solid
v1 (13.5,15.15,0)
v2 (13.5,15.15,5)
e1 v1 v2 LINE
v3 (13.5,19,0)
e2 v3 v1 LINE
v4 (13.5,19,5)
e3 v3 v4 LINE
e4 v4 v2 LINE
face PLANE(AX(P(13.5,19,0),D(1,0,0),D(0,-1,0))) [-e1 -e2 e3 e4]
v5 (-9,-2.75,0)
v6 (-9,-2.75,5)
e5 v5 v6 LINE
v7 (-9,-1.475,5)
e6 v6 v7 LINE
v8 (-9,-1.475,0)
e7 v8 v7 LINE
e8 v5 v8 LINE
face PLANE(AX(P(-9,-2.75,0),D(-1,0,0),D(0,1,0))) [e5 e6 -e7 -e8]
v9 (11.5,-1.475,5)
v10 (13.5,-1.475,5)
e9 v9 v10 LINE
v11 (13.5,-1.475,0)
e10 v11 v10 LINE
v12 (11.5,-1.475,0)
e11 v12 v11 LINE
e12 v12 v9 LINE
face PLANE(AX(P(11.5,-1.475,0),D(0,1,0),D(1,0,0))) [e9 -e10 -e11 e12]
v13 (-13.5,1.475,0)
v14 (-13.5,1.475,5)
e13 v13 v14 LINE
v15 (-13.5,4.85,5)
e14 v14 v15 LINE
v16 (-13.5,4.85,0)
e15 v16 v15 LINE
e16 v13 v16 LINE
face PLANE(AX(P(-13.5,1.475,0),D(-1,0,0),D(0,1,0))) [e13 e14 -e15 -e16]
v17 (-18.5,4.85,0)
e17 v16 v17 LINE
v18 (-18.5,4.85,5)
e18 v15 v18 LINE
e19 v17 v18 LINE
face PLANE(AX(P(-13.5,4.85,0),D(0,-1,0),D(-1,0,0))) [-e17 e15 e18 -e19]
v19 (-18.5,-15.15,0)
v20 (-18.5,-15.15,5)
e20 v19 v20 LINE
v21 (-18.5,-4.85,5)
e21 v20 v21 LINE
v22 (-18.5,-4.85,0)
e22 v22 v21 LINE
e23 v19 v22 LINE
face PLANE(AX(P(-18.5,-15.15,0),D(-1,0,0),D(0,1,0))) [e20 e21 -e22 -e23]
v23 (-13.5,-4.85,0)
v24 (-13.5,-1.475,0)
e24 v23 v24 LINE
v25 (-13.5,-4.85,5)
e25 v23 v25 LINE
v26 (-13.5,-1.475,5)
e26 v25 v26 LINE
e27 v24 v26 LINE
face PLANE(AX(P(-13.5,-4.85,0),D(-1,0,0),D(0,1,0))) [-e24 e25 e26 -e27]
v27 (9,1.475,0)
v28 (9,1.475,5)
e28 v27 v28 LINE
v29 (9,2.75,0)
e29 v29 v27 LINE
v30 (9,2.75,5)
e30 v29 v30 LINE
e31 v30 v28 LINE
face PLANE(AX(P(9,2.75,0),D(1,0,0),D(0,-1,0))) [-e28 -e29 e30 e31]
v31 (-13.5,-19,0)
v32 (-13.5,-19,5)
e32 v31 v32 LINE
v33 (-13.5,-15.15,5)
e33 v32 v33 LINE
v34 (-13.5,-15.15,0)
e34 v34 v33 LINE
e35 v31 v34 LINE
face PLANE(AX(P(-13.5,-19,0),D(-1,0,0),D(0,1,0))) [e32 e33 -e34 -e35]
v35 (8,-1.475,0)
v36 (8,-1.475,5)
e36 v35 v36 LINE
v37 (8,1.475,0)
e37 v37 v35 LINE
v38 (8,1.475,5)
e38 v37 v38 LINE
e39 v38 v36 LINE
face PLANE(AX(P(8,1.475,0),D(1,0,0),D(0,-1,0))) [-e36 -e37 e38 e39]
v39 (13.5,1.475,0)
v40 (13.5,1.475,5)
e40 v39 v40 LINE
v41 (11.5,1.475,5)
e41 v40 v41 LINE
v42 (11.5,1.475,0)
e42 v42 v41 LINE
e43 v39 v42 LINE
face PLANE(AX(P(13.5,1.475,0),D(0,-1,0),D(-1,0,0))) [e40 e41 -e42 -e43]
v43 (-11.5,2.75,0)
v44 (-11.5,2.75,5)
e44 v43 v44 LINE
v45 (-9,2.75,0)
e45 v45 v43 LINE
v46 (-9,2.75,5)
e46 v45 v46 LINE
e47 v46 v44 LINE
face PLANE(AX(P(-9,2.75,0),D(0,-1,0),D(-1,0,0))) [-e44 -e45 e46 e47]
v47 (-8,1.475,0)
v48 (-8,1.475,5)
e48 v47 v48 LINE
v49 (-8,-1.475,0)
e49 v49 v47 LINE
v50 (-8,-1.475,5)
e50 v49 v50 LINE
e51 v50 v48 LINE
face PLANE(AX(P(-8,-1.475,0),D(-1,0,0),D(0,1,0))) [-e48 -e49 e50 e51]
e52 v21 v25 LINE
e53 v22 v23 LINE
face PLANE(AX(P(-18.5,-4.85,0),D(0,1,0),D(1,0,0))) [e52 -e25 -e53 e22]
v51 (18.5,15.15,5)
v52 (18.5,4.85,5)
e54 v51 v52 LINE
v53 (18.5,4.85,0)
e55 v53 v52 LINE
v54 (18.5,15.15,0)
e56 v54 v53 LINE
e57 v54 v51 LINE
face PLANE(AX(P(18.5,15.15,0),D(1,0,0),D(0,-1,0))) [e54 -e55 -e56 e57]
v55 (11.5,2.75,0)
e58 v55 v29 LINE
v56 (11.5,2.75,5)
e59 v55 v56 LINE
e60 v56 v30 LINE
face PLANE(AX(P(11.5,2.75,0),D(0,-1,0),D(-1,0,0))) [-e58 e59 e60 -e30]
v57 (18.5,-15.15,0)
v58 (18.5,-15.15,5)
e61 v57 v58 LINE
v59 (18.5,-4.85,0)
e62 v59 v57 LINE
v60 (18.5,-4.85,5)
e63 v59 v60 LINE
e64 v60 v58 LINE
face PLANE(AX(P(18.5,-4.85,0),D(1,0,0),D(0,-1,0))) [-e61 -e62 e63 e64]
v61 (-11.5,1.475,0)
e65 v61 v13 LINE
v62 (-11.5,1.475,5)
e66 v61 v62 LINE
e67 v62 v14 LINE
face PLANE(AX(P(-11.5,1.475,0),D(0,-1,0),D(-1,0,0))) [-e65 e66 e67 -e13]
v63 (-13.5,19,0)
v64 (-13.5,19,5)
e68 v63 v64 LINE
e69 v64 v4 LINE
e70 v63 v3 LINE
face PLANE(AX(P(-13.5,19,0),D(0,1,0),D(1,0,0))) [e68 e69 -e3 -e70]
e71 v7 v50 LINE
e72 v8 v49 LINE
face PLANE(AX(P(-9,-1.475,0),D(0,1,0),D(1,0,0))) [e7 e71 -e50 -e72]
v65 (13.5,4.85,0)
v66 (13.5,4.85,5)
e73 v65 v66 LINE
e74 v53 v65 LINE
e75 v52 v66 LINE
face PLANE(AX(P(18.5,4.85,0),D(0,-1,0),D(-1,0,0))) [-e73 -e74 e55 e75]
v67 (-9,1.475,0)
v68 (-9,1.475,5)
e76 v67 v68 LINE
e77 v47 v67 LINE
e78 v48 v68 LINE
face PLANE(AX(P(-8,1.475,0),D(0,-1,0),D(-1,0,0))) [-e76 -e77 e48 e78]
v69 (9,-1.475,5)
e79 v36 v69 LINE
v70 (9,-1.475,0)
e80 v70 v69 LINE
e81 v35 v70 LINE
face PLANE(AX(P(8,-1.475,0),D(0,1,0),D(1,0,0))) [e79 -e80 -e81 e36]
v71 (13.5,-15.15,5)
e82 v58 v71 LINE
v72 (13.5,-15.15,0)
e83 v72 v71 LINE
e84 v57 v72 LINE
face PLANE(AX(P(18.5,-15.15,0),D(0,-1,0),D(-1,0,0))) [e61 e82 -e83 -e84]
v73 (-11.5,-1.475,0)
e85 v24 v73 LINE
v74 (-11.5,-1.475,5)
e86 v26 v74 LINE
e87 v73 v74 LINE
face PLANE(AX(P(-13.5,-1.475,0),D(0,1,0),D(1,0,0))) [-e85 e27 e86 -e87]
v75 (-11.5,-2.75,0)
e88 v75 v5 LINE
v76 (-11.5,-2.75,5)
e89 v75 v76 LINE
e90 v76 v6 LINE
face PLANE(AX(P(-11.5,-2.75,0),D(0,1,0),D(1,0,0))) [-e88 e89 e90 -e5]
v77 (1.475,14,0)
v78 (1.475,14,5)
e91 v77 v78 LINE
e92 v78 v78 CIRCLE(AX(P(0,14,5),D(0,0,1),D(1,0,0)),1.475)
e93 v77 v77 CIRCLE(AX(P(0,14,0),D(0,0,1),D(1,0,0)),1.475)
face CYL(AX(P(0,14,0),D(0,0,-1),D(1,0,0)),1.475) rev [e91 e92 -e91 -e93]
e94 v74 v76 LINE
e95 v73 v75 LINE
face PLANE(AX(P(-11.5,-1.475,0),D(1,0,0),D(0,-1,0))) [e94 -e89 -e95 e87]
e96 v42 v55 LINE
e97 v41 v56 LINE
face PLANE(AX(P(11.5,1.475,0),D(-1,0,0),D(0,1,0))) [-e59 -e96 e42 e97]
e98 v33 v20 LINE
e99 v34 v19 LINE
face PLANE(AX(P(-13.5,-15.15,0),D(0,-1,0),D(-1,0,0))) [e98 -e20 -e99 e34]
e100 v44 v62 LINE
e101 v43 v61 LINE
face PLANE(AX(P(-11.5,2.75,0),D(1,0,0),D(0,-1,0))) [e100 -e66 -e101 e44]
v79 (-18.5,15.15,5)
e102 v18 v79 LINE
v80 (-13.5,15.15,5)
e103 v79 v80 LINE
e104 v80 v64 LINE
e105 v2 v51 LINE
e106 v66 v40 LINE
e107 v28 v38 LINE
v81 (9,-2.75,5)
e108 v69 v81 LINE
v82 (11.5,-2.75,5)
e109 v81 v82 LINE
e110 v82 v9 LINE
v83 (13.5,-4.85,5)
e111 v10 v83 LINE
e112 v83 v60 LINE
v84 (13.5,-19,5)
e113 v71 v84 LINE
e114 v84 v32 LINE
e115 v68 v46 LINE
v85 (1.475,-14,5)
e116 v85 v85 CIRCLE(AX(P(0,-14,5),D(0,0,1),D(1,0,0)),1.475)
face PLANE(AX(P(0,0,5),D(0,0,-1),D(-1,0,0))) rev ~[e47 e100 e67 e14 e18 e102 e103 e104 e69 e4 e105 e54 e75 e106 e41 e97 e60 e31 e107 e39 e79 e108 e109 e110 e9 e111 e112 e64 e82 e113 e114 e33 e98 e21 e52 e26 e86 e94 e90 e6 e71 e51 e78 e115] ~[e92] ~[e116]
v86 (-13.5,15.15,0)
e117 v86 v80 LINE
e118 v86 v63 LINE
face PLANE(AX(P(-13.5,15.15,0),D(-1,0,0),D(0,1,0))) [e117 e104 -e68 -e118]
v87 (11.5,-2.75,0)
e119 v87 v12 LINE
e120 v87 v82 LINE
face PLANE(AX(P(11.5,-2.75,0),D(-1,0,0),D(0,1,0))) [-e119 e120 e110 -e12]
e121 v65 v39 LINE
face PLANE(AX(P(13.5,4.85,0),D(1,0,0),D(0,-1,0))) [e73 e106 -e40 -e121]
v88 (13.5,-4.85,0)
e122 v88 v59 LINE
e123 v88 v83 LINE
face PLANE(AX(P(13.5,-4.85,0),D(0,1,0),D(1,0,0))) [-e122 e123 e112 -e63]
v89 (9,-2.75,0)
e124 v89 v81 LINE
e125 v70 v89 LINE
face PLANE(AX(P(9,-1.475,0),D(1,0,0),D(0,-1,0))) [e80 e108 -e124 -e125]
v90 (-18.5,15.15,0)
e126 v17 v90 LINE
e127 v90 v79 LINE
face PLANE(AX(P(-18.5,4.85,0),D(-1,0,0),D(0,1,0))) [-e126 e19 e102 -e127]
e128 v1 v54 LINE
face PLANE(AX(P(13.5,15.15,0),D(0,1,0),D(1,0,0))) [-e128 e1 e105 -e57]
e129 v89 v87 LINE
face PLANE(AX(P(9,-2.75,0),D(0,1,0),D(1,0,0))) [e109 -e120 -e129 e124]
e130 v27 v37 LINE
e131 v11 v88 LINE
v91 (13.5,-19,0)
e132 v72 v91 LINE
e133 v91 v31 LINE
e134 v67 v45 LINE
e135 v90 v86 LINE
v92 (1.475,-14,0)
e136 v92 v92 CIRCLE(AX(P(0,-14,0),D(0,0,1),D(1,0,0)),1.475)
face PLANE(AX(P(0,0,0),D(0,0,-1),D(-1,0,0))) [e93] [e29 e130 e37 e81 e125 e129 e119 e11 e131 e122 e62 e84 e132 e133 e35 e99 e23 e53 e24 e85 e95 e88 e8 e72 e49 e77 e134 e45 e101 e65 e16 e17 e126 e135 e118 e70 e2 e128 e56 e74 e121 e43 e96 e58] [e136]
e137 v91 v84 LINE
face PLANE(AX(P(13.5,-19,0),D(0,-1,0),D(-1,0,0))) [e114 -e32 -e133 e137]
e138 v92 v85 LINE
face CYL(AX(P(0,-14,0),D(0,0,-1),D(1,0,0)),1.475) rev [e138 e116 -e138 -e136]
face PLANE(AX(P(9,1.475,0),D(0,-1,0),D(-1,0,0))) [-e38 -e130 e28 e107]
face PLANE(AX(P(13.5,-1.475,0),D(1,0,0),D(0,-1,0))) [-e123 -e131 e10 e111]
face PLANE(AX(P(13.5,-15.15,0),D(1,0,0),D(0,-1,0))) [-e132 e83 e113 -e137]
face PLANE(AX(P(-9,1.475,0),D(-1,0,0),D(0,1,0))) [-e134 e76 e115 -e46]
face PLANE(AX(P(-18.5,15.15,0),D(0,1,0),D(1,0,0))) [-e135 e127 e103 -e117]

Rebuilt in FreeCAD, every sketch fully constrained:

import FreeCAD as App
import Part
import Sketcher

V = App.Vector

doc = App.newDocument("Part")
body = doc.addObject("PartDesign::Body", "Body")

# Sketch on XY plane
sketch1 = body.newObject("Sketcher::SketchObject", "Sketch")
sketch1.AttachmentSupport = (doc.getObject("XY_Plane"), [""])
sketch1.MapMode = "FlatFace"
sketch1.addGeometry(Part.LineSegment(V(13.5, 19, 0), V(-13.5, 19, 0)), False)
sketch1.addGeometry(Part.LineSegment(V(-13.5, 19, 0), V(-13.5, 15.2, 0)), False)
sketch1.addGeometry(Part.LineSegment(V(-13.5, 15.2, 0), V(-18.5, 15.2, 0)), False)
sketch1.addGeometry(Part.LineSegment(V(-18.5, 15.2, 0), V(-18.5, 4.8, 0)), False)
sketch1.addGeometry(Part.LineSegment(V(-18.5, 4.8, 0), V(-13.5, 4.8, 0)), False)
sketch1.addGeometry(Part.LineSegment(V(-13.5, 4.8, 0), V(-13.5, 1.5, 0)), False)
sketch1.addGeometry(Part.LineSegment(V(-13.5, 1.5, 0), V(-11.5, 1.5, 0)), False)
sketch1.addGeometry(Part.LineSegment(V(-11.5, 1.5, 0), V(-11.5, 2.8, 0)), False)
sketch1.addGeometry(Part.LineSegment(V(-11.5, 2.8, 0), V(-9, 2.8, 0)), False)
sketch1.addGeometry(Part.LineSegment(V(-9, 2.8, 0), V(-9, 1.5, 0)), False)
sketch1.addGeometry(Part.LineSegment(V(-9, 1.5, 0), V(-8, 1.5, 0)), False)
sketch1.addGeometry(Part.LineSegment(V(-8, 1.5, 0), V(-8, -1.5, 0)), False)
sketch1.addGeometry(Part.LineSegment(V(-8, -1.5, 0), V(-9, -1.5, 0)), False)
sketch1.addGeometry(Part.LineSegment(V(-9, -1.5, 0), V(-9, -2.8, 0)), False)
sketch1.addGeometry(Part.LineSegment(V(-9, -2.8, 0), V(-11.5, -2.8, 0)), False)
sketch1.addGeometry(Part.LineSegment(V(-11.5, -2.8, 0), V(-11.5, -1.5, 0)), False)
sketch1.addGeometry(Part.LineSegment(V(-11.5, -1.5, 0), V(-13.5, -1.5, 0)), False)
sketch1.addGeometry(Part.LineSegment(V(-13.5, -1.5, 0), V(-13.5, -4.8, 0)), False)
sketch1.addGeometry(Part.LineSegment(V(-13.5, -4.8, 0), V(-18.5, -4.8, 0)), False)
sketch1.addGeometry(Part.LineSegment(V(-18.5, -4.8, 0), V(-18.5, -15.2, 0)), False)
sketch1.addGeometry(Part.LineSegment(V(-18.5, -15.2, 0), V(-13.5, -15.2, 0)), False)
sketch1.addGeometry(Part.LineSegment(V(-13.5, -15.2, 0), V(-13.5, -19, 0)), False)
sketch1.addGeometry(Part.LineSegment(V(-13.5, -19, 0), V(13.5, -19, 0)), False)
sketch1.addGeometry(Part.LineSegment(V(13.5, -19, 0), V(13.5, -15.2, 0)), False)
sketch1.addGeometry(Part.LineSegment(V(13.5, -15.2, 0), V(18.5, -15.2, 0)), False)
sketch1.addGeometry(Part.LineSegment(V(18.5, -15.2, 0), V(18.5, -4.8, 0)), False)
sketch1.addGeometry(Part.LineSegment(V(18.5, -4.8, 0), V(13.5, -4.8, 0)), False)
sketch1.addGeometry(Part.LineSegment(V(13.5, -4.8, 0), V(13.5, -1.5, 0)), False)
sketch1.addGeometry(Part.LineSegment(V(13.5, -1.5, 0), V(11.5, -1.5, 0)), False)
sketch1.addGeometry(Part.LineSegment(V(11.5, -1.5, 0), V(11.5, -2.8, 0)), False)
sketch1.addGeometry(Part.LineSegment(V(11.5, -2.8, 0), V(9, -2.8, 0)), False)
sketch1.addGeometry(Part.LineSegment(V(9, -2.8, 0), V(9, -1.5, 0)), False)
sketch1.addGeometry(Part.LineSegment(V(9, -1.5, 0), V(8, -1.5, 0)), False)
sketch1.addGeometry(Part.LineSegment(V(8, -1.5, 0), V(8, 1.5, 0)), False)
sketch1.addGeometry(Part.LineSegment(V(8, 1.5, 0), V(9, 1.5, 0)), False)
sketch1.addGeometry(Part.LineSegment(V(9, 1.5, 0), V(9, 2.8, 0)), False)
sketch1.addGeometry(Part.LineSegment(V(9, 2.8, 0), V(11.5, 2.8, 0)), False)
sketch1.addGeometry(Part.LineSegment(V(11.5, 2.8, 0), V(11.5, 1.5, 0)), False)
sketch1.addGeometry(Part.LineSegment(V(11.5, 1.5, 0), V(13.5, 1.5, 0)), False)
sketch1.addGeometry(Part.LineSegment(V(13.5, 1.5, 0), V(13.5, 4.8, 0)), False)
sketch1.addGeometry(Part.LineSegment(V(13.5, 4.8, 0), V(18.5, 4.8, 0)), False)
sketch1.addGeometry(Part.LineSegment(V(18.5, 4.8, 0), V(18.5, 15.2, 0)), False)
sketch1.addGeometry(Part.LineSegment(V(18.5, 15.2, 0), V(13.5, 15.2, 0)), False)
sketch1.addGeometry(Part.LineSegment(V(13.5, 15.2, 0), V(13.5, 19, 0)), False)
sketch1.addGeometry(Part.Circle(V(0, -14, 0), V(0, 0, 1), 1.5), False)
sketch1.addGeometry(Part.Circle(V(0, 14, 0), V(0, 0, 1), 1.5), False)
sketch1.addConstraint(Sketcher.Constraint("Coincident", 0, 2, 1, 1))
sketch1.addConstraint(Sketcher.Constraint("Coincident", 1, 2, 2, 1))
sketch1.addConstraint(Sketcher.Constraint("Coincident", 2, 2, 3, 1))
sketch1.addConstraint(Sketcher.Constraint("Coincident", 3, 2, 4, 1))
sketch1.addConstraint(Sketcher.Constraint("Coincident", 4, 2, 5, 1))
sketch1.addConstraint(Sketcher.Constraint("Coincident", 5, 2, 6, 1))
sketch1.addConstraint(Sketcher.Constraint("Coincident", 6, 2, 7, 1))
sketch1.addConstraint(Sketcher.Constraint("Coincident", 7, 2, 8, 1))
sketch1.addConstraint(Sketcher.Constraint("Coincident", 8, 2, 9, 1))
sketch1.addConstraint(Sketcher.Constraint("Coincident", 9, 2, 10, 1))
sketch1.addConstraint(Sketcher.Constraint("Coincident", 10, 2, 11, 1))
sketch1.addConstraint(Sketcher.Constraint("Coincident", 11, 2, 12, 1))
sketch1.addConstraint(Sketcher.Constraint("Coincident", 12, 2, 13, 1))
sketch1.addConstraint(Sketcher.Constraint("Coincident", 13, 2, 14, 1))
sketch1.addConstraint(Sketcher.Constraint("Coincident", 14, 2, 15, 1))
sketch1.addConstraint(Sketcher.Constraint("Coincident", 15, 2, 16, 1))
sketch1.addConstraint(Sketcher.Constraint("Coincident", 16, 2, 17, 1))
sketch1.addConstraint(Sketcher.Constraint("Coincident", 17, 2, 18, 1))
sketch1.addConstraint(Sketcher.Constraint("Coincident", 18, 2, 19, 1))
sketch1.addConstraint(Sketcher.Constraint("Coincident", 19, 2, 20, 1))
sketch1.addConstraint(Sketcher.Constraint("Coincident", 20, 2, 21, 1))
sketch1.addConstraint(Sketcher.Constraint("Coincident", 21, 2, 22, 1))
sketch1.addConstraint(Sketcher.Constraint("Coincident", 22, 2, 23, 1))
sketch1.addConstraint(Sketcher.Constraint("Coincident", 23, 2, 24, 1))
sketch1.addConstraint(Sketcher.Constraint("Coincident", 24, 2, 25, 1))
sketch1.addConstraint(Sketcher.Constraint("Coincident", 25, 2, 26, 1))
sketch1.addConstraint(Sketcher.Constraint("Coincident", 26, 2, 27, 1))
sketch1.addConstraint(Sketcher.Constraint("Coincident", 27, 2, 28, 1))
sketch1.addConstraint(Sketcher.Constraint("Coincident", 28, 2, 29, 1))
sketch1.addConstraint(Sketcher.Constraint("Coincident", 29, 2, 30, 1))
sketch1.addConstraint(Sketcher.Constraint("Coincident", 30, 2, 31, 1))
sketch1.addConstraint(Sketcher.Constraint("Coincident", 31, 2, 32, 1))
sketch1.addConstraint(Sketcher.Constraint("Coincident", 32, 2, 33, 1))
sketch1.addConstraint(Sketcher.Constraint("Coincident", 33, 2, 34, 1))
sketch1.addConstraint(Sketcher.Constraint("Coincident", 34, 2, 35, 1))
sketch1.addConstraint(Sketcher.Constraint("Coincident", 35, 2, 36, 1))
sketch1.addConstraint(Sketcher.Constraint("Coincident", 36, 2, 37, 1))
sketch1.addConstraint(Sketcher.Constraint("Coincident", 37, 2, 38, 1))
sketch1.addConstraint(Sketcher.Constraint("Coincident", 38, 2, 39, 1))
sketch1.addConstraint(Sketcher.Constraint("Coincident", 39, 2, 40, 1))
sketch1.addConstraint(Sketcher.Constraint("Coincident", 40, 2, 41, 1))
sketch1.addConstraint(Sketcher.Constraint("Coincident", 41, 2, 42, 1))
sketch1.addConstraint(Sketcher.Constraint("Coincident", 42, 2, 43, 1))
sketch1.addConstraint(Sketcher.Constraint("Coincident", 43, 2, 0, 1))
sketch1.addConstraint(Sketcher.Constraint("Horizontal", 0))
sketch1.addConstraint(Sketcher.Constraint("Vertical", 1))
sketch1.addConstraint(Sketcher.Constraint("Horizontal", 2))
sketch1.addConstraint(Sketcher.Constraint("Vertical", 3))
sketch1.addConstraint(Sketcher.Constraint("Horizontal", 4))
sketch1.addConstraint(Sketcher.Constraint("Vertical", 5))
sketch1.addConstraint(Sketcher.Constraint("Horizontal", 6))
sketch1.addConstraint(Sketcher.Constraint("Vertical", 7))
sketch1.addConstraint(Sketcher.Constraint("Horizontal", 8))
sketch1.addConstraint(Sketcher.Constraint("Vertical", 9))
sketch1.addConstraint(Sketcher.Constraint("Horizontal", 10))
sketch1.addConstraint(Sketcher.Constraint("Vertical", 11))
sketch1.addConstraint(Sketcher.Constraint("Horizontal", 12))
sketch1.addConstraint(Sketcher.Constraint("Vertical", 13))
sketch1.addConstraint(Sketcher.Constraint("Horizontal", 14))
sketch1.addConstraint(Sketcher.Constraint("Vertical", 15))
sketch1.addConstraint(Sketcher.Constraint("Horizontal", 16))
sketch1.addConstraint(Sketcher.Constraint("Vertical", 17))
sketch1.addConstraint(Sketcher.Constraint("Horizontal", 18))
sketch1.addConstraint(Sketcher.Constraint("Vertical", 19))
sketch1.addConstraint(Sketcher.Constraint("Horizontal", 20))
sketch1.addConstraint(Sketcher.Constraint("Vertical", 21))
sketch1.addConstraint(Sketcher.Constraint("Horizontal", 22))
sketch1.addConstraint(Sketcher.Constraint("Vertical", 23))
sketch1.addConstraint(Sketcher.Constraint("Horizontal", 24))
sketch1.addConstraint(Sketcher.Constraint("Vertical", 25))
sketch1.addConstraint(Sketcher.Constraint("Horizontal", 26))
sketch1.addConstraint(Sketcher.Constraint("Vertical", 27))
sketch1.addConstraint(Sketcher.Constraint("Horizontal", 28))
sketch1.addConstraint(Sketcher.Constraint("Vertical", 29))
sketch1.addConstraint(Sketcher.Constraint("Horizontal", 30))
sketch1.addConstraint(Sketcher.Constraint("Vertical", 31))
sketch1.addConstraint(Sketcher.Constraint("Horizontal", 32))
sketch1.addConstraint(Sketcher.Constraint("Vertical", 33))
sketch1.addConstraint(Sketcher.Constraint("Horizontal", 34))
sketch1.addConstraint(Sketcher.Constraint("Vertical", 35))
sketch1.addConstraint(Sketcher.Constraint("Horizontal", 36))
sketch1.addConstraint(Sketcher.Constraint("Vertical", 37))
sketch1.addConstraint(Sketcher.Constraint("Horizontal", 38))
sketch1.addConstraint(Sketcher.Constraint("Vertical", 39))
sketch1.addConstraint(Sketcher.Constraint("Horizontal", 40))
sketch1.addConstraint(Sketcher.Constraint("Vertical", 41))
sketch1.addConstraint(Sketcher.Constraint("Horizontal", 42))
sketch1.addConstraint(Sketcher.Constraint("Vertical", 43))
sketch1.addConstraint(Sketcher.Constraint("Equal", 44, 45))
sketch1.addConstraint(Sketcher.Constraint("Symmetric", 44, 3, 45, 3, -1, 1))
sketch1.addConstraint(Sketcher.Constraint("Symmetric", 0, 2, 22, 2, -1, 1))
sketch1.addConstraint(Sketcher.Constraint("Symmetric", 2, 2, 24, 2, -1, 1))
sketch1.addConstraint(Sketcher.Constraint("Symmetric", 4, 2, 26, 2, -1, 1))
sketch1.addConstraint(Sketcher.Constraint("Symmetric", 6, 2, 28, 2, -1, 1))
sketch1.addConstraint(Sketcher.Constraint("Symmetric", 8, 2, 30, 2, -1, 1))
sketch1.addConstraint(Sketcher.Constraint("Symmetric", 10, 2, 32, 2, -1, 1))
sketch1.addConstraint(Sketcher.Constraint("Symmetric", 12, 2, 34, 2, -1, 1))
sketch1.addConstraint(Sketcher.Constraint("Symmetric", 14, 2, 36, 2, -1, 1))
sketch1.addConstraint(Sketcher.Constraint("Symmetric", 16, 2, 38, 2, -1, 1))
sketch1.addConstraint(Sketcher.Constraint("Symmetric", 18, 2, 40, 2, -1, 1))
sketch1.addConstraint(Sketcher.Constraint("Symmetric", 20, 2, 42, 2, -1, 1))
sketch1.addConstraint(Sketcher.Constraint("Symmetric", 20, 2, 23, 2, -2))
sketch1.addConstraint(Sketcher.Constraint("Symmetric", 18, 2, 25, 2, -2))
sketch1.addConstraint(Sketcher.Constraint("Symmetric", 16, 2, 27, 2, -2))
sketch1.addConstraint(Sketcher.Constraint("Symmetric", 14, 2, 29, 2, -2))
sketch1.addConstraint(Sketcher.Constraint("Symmetric", 12, 2, 31, 2, -2))
sketch1.addConstraint(Sketcher.Constraint("PointOnObject", 44, 3, -2))
sketch1.addConstraint(Sketcher.Constraint("Horizontal", 6, 2, 9, 2))
sketch1.addConstraint(Sketcher.Constraint("Vertical", 1, 2, 4, 2))
sketch1.addConstraint(Sketcher.Constraint("Diameter", 44, 2.95))
sketch1.addConstraint(Sketcher.Constraint("DistanceX", 0, 2, 0, 1, 27.0))
sketch1.addConstraint(Sketcher.Constraint("DistanceX", 2, 2, 2, 1, 5.0))
sketch1.addConstraint(Sketcher.Constraint("DistanceX", 6, 1, 6, 2, 2.0))
sketch1.addConstraint(Sketcher.Constraint("DistanceX", 10, 1, 10, 2, 1.0))
sketch1.addConstraint(Sketcher.Constraint("DistanceX", 8, 1, 8, 2, 2.5))
sketch1.addConstraint(Sketcher.Constraint("DistanceY", 3, 2, 3, 1, 10.3))
sketch1.addConstraint(Sketcher.Constraint("DistanceY", 44, 3, -1, 1, 14.0))
sketch1.addConstraint(Sketcher.Constraint("DistanceY", -1, 1, 0, 2, 19.0))
sketch1.addConstraint(Sketcher.Constraint("DistanceY", 1, 2, 1, 1, 3.85))
sketch1.addConstraint(Sketcher.Constraint("DistanceY", 11, 2, 11, 1, 2.95))
sketch1.addConstraint(Sketcher.Constraint("DistanceY", 7, 2, 4, 2, 2.1))
pad1 = body.newObject("PartDesign::Pad", "Pad")
pad1.Profile = sketch1
pad1.Length = 5

doc.recompute()
